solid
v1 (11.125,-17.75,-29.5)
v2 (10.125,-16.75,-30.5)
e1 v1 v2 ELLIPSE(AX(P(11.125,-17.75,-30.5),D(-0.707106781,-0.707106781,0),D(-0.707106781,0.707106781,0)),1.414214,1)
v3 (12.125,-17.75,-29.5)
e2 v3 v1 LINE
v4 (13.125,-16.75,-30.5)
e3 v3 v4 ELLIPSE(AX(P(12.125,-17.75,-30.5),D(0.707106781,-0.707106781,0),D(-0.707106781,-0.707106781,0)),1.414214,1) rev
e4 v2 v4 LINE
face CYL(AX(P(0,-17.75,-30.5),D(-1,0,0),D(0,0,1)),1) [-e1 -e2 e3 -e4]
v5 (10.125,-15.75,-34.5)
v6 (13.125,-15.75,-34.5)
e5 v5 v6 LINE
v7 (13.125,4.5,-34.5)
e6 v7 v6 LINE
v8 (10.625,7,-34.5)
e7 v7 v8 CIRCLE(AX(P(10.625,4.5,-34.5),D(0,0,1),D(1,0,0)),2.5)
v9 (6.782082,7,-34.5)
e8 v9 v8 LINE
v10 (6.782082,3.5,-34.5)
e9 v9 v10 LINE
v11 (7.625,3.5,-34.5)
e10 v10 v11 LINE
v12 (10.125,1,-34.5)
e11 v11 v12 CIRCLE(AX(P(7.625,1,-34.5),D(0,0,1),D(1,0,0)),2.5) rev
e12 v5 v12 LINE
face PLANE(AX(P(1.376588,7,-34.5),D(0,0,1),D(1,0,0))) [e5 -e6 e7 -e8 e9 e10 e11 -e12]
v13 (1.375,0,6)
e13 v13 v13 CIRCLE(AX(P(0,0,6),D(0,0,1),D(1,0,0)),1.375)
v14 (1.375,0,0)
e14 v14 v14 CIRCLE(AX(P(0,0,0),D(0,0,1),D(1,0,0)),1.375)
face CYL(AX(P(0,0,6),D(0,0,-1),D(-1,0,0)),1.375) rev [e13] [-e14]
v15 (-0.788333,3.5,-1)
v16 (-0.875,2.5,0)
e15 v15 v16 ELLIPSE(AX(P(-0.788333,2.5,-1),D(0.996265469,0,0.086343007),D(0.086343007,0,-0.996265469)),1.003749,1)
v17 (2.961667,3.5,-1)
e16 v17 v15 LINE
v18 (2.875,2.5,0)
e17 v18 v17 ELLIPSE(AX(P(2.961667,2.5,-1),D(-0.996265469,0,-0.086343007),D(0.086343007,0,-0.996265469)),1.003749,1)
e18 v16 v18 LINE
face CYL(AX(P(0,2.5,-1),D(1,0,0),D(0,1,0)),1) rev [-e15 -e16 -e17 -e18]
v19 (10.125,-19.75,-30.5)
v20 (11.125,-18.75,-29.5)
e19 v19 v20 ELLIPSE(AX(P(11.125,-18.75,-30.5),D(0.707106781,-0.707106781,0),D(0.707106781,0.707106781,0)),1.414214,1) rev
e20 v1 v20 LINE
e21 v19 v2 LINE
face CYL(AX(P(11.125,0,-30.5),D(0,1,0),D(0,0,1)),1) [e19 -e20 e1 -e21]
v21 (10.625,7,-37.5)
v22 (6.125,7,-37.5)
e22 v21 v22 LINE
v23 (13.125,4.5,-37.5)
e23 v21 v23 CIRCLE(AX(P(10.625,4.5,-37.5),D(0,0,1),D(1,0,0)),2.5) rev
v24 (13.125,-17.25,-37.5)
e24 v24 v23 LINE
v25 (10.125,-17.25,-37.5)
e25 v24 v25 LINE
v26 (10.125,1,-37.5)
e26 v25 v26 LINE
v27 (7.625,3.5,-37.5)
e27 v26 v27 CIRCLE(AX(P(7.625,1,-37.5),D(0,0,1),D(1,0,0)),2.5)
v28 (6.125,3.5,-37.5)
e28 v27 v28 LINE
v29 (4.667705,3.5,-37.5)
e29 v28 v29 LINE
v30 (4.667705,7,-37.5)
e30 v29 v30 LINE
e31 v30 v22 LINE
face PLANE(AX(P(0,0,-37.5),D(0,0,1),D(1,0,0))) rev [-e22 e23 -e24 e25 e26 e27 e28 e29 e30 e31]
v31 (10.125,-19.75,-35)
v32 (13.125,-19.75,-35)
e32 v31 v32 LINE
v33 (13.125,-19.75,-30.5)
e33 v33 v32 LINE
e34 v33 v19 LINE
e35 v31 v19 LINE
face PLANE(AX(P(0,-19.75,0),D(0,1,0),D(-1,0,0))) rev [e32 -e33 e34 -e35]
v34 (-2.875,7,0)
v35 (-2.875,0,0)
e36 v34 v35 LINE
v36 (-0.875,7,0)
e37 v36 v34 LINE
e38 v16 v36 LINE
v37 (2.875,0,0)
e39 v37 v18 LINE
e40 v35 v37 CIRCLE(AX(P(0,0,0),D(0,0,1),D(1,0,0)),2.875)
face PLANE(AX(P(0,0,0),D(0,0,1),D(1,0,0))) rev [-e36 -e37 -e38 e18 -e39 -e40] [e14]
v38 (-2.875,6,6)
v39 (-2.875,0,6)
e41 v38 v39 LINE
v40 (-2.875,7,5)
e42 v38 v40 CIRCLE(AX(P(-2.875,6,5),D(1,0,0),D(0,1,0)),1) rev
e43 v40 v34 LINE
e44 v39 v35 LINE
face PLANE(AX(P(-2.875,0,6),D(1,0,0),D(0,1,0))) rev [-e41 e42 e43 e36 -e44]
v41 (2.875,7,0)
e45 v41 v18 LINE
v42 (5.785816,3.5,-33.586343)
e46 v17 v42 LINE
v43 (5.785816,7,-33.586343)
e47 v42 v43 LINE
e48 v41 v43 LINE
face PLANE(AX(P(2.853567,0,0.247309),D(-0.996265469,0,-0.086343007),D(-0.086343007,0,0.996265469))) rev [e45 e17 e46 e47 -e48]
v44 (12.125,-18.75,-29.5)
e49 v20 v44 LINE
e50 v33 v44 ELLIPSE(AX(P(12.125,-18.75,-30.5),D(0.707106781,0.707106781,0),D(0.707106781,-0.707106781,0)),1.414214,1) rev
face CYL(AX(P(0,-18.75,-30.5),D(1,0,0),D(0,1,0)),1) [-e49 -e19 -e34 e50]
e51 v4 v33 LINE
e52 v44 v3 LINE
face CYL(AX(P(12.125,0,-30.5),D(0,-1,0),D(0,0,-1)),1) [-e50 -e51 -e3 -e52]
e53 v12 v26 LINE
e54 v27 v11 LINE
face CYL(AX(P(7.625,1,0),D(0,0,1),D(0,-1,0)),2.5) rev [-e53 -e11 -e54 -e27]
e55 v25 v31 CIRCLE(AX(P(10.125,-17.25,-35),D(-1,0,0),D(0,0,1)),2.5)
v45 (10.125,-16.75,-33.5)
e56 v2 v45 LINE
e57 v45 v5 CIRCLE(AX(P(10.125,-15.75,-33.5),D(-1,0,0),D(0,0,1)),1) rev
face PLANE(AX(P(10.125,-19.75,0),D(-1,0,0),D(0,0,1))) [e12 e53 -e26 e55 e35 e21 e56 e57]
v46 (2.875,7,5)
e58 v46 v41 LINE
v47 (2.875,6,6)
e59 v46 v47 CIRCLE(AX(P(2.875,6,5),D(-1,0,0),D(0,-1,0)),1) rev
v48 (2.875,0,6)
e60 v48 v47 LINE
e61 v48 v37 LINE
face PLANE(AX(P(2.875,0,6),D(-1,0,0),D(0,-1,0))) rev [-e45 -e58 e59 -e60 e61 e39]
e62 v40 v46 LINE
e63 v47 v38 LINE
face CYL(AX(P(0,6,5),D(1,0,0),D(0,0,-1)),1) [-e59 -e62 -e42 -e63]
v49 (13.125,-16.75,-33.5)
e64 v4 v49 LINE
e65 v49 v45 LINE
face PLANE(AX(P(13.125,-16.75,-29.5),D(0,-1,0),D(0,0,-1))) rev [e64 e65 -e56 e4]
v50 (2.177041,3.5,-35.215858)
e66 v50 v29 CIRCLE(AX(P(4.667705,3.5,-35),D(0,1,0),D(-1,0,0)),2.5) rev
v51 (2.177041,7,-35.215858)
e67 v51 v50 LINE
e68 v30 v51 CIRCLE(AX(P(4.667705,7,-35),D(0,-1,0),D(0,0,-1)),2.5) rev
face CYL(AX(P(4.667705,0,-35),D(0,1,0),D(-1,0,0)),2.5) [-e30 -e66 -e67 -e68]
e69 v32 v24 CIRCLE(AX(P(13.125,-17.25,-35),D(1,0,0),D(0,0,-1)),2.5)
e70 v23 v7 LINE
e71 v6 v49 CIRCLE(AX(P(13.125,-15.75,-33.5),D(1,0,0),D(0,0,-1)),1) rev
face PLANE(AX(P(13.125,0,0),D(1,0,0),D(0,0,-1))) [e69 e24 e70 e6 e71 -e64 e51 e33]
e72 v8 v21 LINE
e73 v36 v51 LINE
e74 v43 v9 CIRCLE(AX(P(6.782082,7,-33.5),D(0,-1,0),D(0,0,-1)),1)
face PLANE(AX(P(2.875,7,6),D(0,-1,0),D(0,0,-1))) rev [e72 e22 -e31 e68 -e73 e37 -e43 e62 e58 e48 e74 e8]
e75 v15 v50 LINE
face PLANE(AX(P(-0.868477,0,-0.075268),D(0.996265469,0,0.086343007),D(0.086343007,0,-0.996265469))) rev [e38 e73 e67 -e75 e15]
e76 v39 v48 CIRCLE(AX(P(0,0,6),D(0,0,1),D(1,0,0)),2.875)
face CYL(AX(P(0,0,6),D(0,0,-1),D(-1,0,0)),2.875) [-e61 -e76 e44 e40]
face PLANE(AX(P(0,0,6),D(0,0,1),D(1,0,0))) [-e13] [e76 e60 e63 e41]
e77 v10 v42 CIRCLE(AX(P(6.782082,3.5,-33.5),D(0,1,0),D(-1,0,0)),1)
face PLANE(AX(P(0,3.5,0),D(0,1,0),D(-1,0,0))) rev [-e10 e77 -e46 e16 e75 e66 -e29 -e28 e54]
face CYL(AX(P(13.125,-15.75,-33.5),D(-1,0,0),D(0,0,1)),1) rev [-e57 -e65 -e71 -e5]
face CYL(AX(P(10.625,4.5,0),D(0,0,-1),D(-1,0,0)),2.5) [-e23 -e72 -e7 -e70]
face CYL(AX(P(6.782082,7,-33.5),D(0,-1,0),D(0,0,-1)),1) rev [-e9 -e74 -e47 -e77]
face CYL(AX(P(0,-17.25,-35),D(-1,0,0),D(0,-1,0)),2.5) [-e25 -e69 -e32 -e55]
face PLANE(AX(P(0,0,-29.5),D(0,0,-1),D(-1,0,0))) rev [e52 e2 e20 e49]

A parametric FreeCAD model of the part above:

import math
import FreeCAD as App
import Part
import Sketcher

V = App.Vector


def edges_at(feature, points):
    """Names of the edges that pass closest to the given points."""
    edges = feature.Shape.Edges
    near = lambda p: min(range(len(edges)), key=lambda i: edges[i].distToShape(Part.Vertex(*p))[0])
    return sorted({f"Edge{near(p) + 1}" for p in points})


def add_polygon(sketch, points):
    """Adds a closed chain of lines whose ends are joined by coincident constraints."""
    first, n = sketch.GeometryCount, len(points)
    for a, b in zip(points, points[1:] + points[:1]):
        sketch.addGeometry(Part.LineSegment(App.Vector(*a, 0), App.Vector(*b, 0)), False)
    for i in range(n):
        sketch.addConstraint(Sketcher.Constraint("Coincident", first + i, 2, first + (i + 1) % n, 1))

doc = App.newDocument("Part")
body = doc.addObject("PartDesign::Body", "Body")

# Sketch on XY plane
sketch1 = body.newObject("Sketcher::SketchObject", "Sketch")
sketch1.AttachmentSupport = (doc.getObject("XY_Plane"), [""])
sketch1.MapMode = "FlatFace"
sketch1.addGeometry(Part.LineSegment(V(-2.9, 7, 0), V(-2.9, 0, 0)), False)
sketch1.addGeometry(Part.ArcOfCircle(Part.Circle(V(0, 0, 0), V(0, 0, 1), 2.9), math.radians(180), math.radians(360)), False)
sketch1.addGeometry(Part.LineSegment(V(2.9, 0, 0), V(2.9, 7, 0)), False)
sketch1.addGeometry(Part.LineSegment(V(2.9, 7, 0), V(-2.9, 7, 0)), False)
sketch1.addGeometry(Part.Circle(V(0, 0, 0), V(0, 0, 1), 1.4), False)
sketch1.addConstraint(Sketcher.Constraint("Tangent", 0, 2, 1, 1))
sketch1.addConstraint(Sketcher.Constraint("Tangent", 1, 2, 2, 1))
sketch1.addConstraint(Sketcher.Constraint("Coincident", 2, 2, 3, 1))
sketch1.addConstraint(Sketcher.Constraint("Coincident", 3, 2, 0, 1))
sketch1.addConstraint(Sketcher.Constraint("Vertical", 0))
sketch1.addConstraint(Sketcher.Constraint("Vertical", 2))
sketch1.addConstraint(Sketcher.Constraint("Horizontal", 3))
sketch1.addConstraint(Sketcher.Constraint("Coincident", 1, 3, -1, 1))
sketch1.addConstraint(Sketcher.Constraint("Coincident", 4, 3, -1, 1))
sketch1.addConstraint(Sketcher.Constraint("Diameter", 4, 2.75))
sketch1.addConstraint(Sketcher.Constraint("DistanceY", 0, 2, 0, 1, 7.0))
sketch1.addConstraint(Sketcher.Constraint("Radius", 1, 2.875))
pad1 = body.newObject("PartDesign::Pad", "Pad")
pad1.Profile = sketch1
pad1.Length = 6

# Sketch on XY plane
sketch2 = body.newObject("Sketcher::SketchObject", "Sketch001")
sketch2.AttachmentSupport = (doc.getObject("XY_Plane"), [""])
sketch2.MapMode = "FlatFace"
add_polygon(sketch2, [(-0.9, 7), (2.9, 7), (2.9, 3.5), (-0.9, 3.5)])  # lines 0-3
sketch2.addConstraint(Sketcher.Constraint("Horizontal", 0))
sketch2.addConstraint(Sketcher.Constraint("Vertical", 1))
sketch2.addConstraint(Sketcher.Constraint("Horizontal", 2))
sketch2.addConstraint(Sketcher.Constraint("Vertical", 3))
sketch2.addConstraint(Sketcher.Constraint("DistanceY", 1, 2, 1, 1, 3.5))
sketch2.addConstraint(Sketcher.Constraint("DistanceY", -1, 1, 0, 2, 7.0))
sketch2.addConstraint(Sketcher.Constraint("DistanceX", 0, 1, 0, 2, 3.75))
sketch2.addConstraint(Sketcher.Constraint("DistanceX", -1, 1, 0, 2, 2.875))

# Sketch on XY plane
sketch3 = body.newObject("Sketcher::SketchObject", "Sketch002")
sketch3.AttachmentSupport = (doc.getObject("XY_Plane"), [""])
sketch3.MapMode = "FlatFace"
sketch3.AttachmentOffset = App.Placement(V(0, 0, -37.5), App.Rotation())
add_polygon(sketch3, [(6.1, 7), (6.1, 3.5), (2.4, 3.5), (2.4, 7)])  # lines 0-3
sketch3.addConstraint(Sketcher.Constraint("Vertical", 0))
sketch3.addConstraint(Sketcher.Constraint("Horizontal", 1))
sketch3.addConstraint(Sketcher.Constraint("Vertical", 2))
sketch3.addConstraint(Sketcher.Constraint("Horizontal", 3))
sketch3.addConstraint(Sketcher.Constraint("DistanceY", 0, 2, 0, 1, 3.5))
sketch3.addConstraint(Sketcher.Constraint("DistanceY", -1, 1, 2, 2, 7.0))
sketch3.addConstraint(Sketcher.Constraint("DistanceX", 1, 2, 1, 1, 3.75))
sketch3.addConstraint(Sketcher.Constraint("DistanceX", -1, 1, 0, 2, 6.125))

additiveloft = body.newObject("PartDesign::AdditiveLoft", "AdditiveLoft")
additiveloft.Profile = sketch2
additiveloft.Sections = [sketch3]

# Sketch on YZ plane
sketch4 = body.newObject("Sketcher::SketchObject", "Sketch003")
sketch4.AttachmentSupport = (doc.getObject("YZ_Plane"), [""])
sketch4.MapMode = "FlatFace"
sketch4.AttachmentOffset = App.Placement(V(0, 0, 5.865), App.Rotation())
add_polygon(sketch4, [(3.5, -34.5), (3.5, -37.5), (7, -37.5), (7, -34.5)])  # lines 0-3
sketch4.addConstraint(Sketcher.Constraint("Vertical", 0))
sketch4.addConstraint(Sketcher.Constraint("Horizontal", 1))
sketch4.addConstraint(Sketcher.Constraint("Vertical", 2))
sketch4.addConstraint(Sketcher.Constraint("Horizontal", 3))
sketch4.addConstraint(Sketcher.Constraint("DistanceY", 0, 2, 0, 1, 3.0))
sketch4.addConstraint(Sketcher.Constraint("DistanceX", 1, 1, 1, 2, 3.5))
sketch4.addConstraint(Sketcher.Constraint("DistanceX", -1, 1, 1, 2, 7.0))
sketch4.addConstraint(Sketcher.Constraint("DistanceY", 0, 2, -1, 1, 37.5))
pad2 = body.newObject("PartDesign::Pad", "Pad001")
pad2.Profile = sketch4
pad2.Length = 7.26

# Sketch on XZ plane
sketch5 = body.newObject("Sketcher::SketchObject", "Sketch004")
sketch5.AttachmentSupport = (doc.getObject("XZ_Plane"), [""])
sketch5.MapMode = "FlatFace"
sketch5.AttachmentOffset = App.Placement(V(0, 0, 19.75), App.Rotation())
add_polygon(sketch5, [(13.1, -34.5), (13.1, -37.5), (10.1, -37.5), (10.1, -34.5)])  # lines 0-3
sketch5.addConstraint(Sketcher.Constraint("Vertical", 0))
sketch5.addConstraint(Sketcher.Constraint("Horizontal", 1))
sketch5.addConstraint(Sketcher.Constraint("Vertical", 2))
sketch5.addConstraint(Sketcher.Constraint("Horizontal", 3))
sketch5.addConstraint(Sketcher.Constraint("Equal", 3, 0))
sketch5.addConstraint(Sketcher.Constraint("DistanceX", 1, 2, 1, 1, 3.0))
sketch5.addConstraint(Sketcher.Constraint("DistanceY", 0, 2, -1, 1, 37.5))
sketch5.addConstraint(Sketcher.Constraint("DistanceX", -1, 1, 0, 2, 13.125))
pad3 = body.newObject("PartDesign::Pad", "Pad002")
pad3.Profile = sketch5
pad3.Length = 23.25
pad3.Reversed = True

# Sketch on XY plane
sketch6 = body.newObject("Sketcher::SketchObject", "Sketch005")
sketch6.AttachmentSupport = (doc.getObject("XY_Plane"), [""])
sketch6.MapMode = "FlatFace"
sketch6.AttachmentOffset = App.Placement(V(0, 0, -34.5), App.Rotation())
add_polygon(sketch6, [(10.1, -16.8), (10.1, -19.8), (13.1, -19.8), (13.1, -16.8)])  # lines 0-3
sketch6.addConstraint(Sketcher.Constraint("Vertical", 0))
sketch6.addConstraint(Sketcher.Constraint("Horizontal", 1))
sketch6.addConstraint(Sketcher.Constraint("Vertical", 2))
sketch6.addConstraint(Sketcher.Constraint("Horizontal", 3))
sketch6.addConstraint(Sketcher.Constraint("Equal", 3, 0))
sketch6.addConstraint(Sketcher.Constraint("DistanceX", 1, 1, 1, 2, 3.0))
sketch6.addConstraint(Sketcher.Constraint("DistanceY", 0, 2, -1, 1, 19.75))
sketch6.addConstraint(Sketcher.Constraint("DistanceX", -1, 1, 0, 2, 10.125))
pad4 = body.newObject("PartDesign::Pad", "Pad003")
pad4.Profile = sketch6
pad4.Length = 5
doc.recompute()

fillet = body.newObject("PartDesign::Fillet", "Fillet")
fillet.Base = (pad4, edges_at(pad4, [
    (2.375, 5.25, -37.5),
    (13.125, 7, -36),
    (11.625, -19.75, -37.5),
    (10.125, 3.5, -36),
]))
fillet.Radius = 2.5
doc.recompute()

fillet2 = body.newObject("PartDesign::Fillet", "Fillet001")
fillet2.Base = (fillet, edges_at(fillet, [
    (0, 7, 6),
    (1, 3.5, 0),
    (5.865, 5.25, -34.5),
    (11.625, -16.75, -34.5),
    (11.625, -19.75, -29.5),
    (13.125, -18.25, -29.5),
    (11.625, -16.75, -29.5),
    (10.125, -18.25, -29.5),
]))
fillet2.Radius = 1

doc.recompute()
